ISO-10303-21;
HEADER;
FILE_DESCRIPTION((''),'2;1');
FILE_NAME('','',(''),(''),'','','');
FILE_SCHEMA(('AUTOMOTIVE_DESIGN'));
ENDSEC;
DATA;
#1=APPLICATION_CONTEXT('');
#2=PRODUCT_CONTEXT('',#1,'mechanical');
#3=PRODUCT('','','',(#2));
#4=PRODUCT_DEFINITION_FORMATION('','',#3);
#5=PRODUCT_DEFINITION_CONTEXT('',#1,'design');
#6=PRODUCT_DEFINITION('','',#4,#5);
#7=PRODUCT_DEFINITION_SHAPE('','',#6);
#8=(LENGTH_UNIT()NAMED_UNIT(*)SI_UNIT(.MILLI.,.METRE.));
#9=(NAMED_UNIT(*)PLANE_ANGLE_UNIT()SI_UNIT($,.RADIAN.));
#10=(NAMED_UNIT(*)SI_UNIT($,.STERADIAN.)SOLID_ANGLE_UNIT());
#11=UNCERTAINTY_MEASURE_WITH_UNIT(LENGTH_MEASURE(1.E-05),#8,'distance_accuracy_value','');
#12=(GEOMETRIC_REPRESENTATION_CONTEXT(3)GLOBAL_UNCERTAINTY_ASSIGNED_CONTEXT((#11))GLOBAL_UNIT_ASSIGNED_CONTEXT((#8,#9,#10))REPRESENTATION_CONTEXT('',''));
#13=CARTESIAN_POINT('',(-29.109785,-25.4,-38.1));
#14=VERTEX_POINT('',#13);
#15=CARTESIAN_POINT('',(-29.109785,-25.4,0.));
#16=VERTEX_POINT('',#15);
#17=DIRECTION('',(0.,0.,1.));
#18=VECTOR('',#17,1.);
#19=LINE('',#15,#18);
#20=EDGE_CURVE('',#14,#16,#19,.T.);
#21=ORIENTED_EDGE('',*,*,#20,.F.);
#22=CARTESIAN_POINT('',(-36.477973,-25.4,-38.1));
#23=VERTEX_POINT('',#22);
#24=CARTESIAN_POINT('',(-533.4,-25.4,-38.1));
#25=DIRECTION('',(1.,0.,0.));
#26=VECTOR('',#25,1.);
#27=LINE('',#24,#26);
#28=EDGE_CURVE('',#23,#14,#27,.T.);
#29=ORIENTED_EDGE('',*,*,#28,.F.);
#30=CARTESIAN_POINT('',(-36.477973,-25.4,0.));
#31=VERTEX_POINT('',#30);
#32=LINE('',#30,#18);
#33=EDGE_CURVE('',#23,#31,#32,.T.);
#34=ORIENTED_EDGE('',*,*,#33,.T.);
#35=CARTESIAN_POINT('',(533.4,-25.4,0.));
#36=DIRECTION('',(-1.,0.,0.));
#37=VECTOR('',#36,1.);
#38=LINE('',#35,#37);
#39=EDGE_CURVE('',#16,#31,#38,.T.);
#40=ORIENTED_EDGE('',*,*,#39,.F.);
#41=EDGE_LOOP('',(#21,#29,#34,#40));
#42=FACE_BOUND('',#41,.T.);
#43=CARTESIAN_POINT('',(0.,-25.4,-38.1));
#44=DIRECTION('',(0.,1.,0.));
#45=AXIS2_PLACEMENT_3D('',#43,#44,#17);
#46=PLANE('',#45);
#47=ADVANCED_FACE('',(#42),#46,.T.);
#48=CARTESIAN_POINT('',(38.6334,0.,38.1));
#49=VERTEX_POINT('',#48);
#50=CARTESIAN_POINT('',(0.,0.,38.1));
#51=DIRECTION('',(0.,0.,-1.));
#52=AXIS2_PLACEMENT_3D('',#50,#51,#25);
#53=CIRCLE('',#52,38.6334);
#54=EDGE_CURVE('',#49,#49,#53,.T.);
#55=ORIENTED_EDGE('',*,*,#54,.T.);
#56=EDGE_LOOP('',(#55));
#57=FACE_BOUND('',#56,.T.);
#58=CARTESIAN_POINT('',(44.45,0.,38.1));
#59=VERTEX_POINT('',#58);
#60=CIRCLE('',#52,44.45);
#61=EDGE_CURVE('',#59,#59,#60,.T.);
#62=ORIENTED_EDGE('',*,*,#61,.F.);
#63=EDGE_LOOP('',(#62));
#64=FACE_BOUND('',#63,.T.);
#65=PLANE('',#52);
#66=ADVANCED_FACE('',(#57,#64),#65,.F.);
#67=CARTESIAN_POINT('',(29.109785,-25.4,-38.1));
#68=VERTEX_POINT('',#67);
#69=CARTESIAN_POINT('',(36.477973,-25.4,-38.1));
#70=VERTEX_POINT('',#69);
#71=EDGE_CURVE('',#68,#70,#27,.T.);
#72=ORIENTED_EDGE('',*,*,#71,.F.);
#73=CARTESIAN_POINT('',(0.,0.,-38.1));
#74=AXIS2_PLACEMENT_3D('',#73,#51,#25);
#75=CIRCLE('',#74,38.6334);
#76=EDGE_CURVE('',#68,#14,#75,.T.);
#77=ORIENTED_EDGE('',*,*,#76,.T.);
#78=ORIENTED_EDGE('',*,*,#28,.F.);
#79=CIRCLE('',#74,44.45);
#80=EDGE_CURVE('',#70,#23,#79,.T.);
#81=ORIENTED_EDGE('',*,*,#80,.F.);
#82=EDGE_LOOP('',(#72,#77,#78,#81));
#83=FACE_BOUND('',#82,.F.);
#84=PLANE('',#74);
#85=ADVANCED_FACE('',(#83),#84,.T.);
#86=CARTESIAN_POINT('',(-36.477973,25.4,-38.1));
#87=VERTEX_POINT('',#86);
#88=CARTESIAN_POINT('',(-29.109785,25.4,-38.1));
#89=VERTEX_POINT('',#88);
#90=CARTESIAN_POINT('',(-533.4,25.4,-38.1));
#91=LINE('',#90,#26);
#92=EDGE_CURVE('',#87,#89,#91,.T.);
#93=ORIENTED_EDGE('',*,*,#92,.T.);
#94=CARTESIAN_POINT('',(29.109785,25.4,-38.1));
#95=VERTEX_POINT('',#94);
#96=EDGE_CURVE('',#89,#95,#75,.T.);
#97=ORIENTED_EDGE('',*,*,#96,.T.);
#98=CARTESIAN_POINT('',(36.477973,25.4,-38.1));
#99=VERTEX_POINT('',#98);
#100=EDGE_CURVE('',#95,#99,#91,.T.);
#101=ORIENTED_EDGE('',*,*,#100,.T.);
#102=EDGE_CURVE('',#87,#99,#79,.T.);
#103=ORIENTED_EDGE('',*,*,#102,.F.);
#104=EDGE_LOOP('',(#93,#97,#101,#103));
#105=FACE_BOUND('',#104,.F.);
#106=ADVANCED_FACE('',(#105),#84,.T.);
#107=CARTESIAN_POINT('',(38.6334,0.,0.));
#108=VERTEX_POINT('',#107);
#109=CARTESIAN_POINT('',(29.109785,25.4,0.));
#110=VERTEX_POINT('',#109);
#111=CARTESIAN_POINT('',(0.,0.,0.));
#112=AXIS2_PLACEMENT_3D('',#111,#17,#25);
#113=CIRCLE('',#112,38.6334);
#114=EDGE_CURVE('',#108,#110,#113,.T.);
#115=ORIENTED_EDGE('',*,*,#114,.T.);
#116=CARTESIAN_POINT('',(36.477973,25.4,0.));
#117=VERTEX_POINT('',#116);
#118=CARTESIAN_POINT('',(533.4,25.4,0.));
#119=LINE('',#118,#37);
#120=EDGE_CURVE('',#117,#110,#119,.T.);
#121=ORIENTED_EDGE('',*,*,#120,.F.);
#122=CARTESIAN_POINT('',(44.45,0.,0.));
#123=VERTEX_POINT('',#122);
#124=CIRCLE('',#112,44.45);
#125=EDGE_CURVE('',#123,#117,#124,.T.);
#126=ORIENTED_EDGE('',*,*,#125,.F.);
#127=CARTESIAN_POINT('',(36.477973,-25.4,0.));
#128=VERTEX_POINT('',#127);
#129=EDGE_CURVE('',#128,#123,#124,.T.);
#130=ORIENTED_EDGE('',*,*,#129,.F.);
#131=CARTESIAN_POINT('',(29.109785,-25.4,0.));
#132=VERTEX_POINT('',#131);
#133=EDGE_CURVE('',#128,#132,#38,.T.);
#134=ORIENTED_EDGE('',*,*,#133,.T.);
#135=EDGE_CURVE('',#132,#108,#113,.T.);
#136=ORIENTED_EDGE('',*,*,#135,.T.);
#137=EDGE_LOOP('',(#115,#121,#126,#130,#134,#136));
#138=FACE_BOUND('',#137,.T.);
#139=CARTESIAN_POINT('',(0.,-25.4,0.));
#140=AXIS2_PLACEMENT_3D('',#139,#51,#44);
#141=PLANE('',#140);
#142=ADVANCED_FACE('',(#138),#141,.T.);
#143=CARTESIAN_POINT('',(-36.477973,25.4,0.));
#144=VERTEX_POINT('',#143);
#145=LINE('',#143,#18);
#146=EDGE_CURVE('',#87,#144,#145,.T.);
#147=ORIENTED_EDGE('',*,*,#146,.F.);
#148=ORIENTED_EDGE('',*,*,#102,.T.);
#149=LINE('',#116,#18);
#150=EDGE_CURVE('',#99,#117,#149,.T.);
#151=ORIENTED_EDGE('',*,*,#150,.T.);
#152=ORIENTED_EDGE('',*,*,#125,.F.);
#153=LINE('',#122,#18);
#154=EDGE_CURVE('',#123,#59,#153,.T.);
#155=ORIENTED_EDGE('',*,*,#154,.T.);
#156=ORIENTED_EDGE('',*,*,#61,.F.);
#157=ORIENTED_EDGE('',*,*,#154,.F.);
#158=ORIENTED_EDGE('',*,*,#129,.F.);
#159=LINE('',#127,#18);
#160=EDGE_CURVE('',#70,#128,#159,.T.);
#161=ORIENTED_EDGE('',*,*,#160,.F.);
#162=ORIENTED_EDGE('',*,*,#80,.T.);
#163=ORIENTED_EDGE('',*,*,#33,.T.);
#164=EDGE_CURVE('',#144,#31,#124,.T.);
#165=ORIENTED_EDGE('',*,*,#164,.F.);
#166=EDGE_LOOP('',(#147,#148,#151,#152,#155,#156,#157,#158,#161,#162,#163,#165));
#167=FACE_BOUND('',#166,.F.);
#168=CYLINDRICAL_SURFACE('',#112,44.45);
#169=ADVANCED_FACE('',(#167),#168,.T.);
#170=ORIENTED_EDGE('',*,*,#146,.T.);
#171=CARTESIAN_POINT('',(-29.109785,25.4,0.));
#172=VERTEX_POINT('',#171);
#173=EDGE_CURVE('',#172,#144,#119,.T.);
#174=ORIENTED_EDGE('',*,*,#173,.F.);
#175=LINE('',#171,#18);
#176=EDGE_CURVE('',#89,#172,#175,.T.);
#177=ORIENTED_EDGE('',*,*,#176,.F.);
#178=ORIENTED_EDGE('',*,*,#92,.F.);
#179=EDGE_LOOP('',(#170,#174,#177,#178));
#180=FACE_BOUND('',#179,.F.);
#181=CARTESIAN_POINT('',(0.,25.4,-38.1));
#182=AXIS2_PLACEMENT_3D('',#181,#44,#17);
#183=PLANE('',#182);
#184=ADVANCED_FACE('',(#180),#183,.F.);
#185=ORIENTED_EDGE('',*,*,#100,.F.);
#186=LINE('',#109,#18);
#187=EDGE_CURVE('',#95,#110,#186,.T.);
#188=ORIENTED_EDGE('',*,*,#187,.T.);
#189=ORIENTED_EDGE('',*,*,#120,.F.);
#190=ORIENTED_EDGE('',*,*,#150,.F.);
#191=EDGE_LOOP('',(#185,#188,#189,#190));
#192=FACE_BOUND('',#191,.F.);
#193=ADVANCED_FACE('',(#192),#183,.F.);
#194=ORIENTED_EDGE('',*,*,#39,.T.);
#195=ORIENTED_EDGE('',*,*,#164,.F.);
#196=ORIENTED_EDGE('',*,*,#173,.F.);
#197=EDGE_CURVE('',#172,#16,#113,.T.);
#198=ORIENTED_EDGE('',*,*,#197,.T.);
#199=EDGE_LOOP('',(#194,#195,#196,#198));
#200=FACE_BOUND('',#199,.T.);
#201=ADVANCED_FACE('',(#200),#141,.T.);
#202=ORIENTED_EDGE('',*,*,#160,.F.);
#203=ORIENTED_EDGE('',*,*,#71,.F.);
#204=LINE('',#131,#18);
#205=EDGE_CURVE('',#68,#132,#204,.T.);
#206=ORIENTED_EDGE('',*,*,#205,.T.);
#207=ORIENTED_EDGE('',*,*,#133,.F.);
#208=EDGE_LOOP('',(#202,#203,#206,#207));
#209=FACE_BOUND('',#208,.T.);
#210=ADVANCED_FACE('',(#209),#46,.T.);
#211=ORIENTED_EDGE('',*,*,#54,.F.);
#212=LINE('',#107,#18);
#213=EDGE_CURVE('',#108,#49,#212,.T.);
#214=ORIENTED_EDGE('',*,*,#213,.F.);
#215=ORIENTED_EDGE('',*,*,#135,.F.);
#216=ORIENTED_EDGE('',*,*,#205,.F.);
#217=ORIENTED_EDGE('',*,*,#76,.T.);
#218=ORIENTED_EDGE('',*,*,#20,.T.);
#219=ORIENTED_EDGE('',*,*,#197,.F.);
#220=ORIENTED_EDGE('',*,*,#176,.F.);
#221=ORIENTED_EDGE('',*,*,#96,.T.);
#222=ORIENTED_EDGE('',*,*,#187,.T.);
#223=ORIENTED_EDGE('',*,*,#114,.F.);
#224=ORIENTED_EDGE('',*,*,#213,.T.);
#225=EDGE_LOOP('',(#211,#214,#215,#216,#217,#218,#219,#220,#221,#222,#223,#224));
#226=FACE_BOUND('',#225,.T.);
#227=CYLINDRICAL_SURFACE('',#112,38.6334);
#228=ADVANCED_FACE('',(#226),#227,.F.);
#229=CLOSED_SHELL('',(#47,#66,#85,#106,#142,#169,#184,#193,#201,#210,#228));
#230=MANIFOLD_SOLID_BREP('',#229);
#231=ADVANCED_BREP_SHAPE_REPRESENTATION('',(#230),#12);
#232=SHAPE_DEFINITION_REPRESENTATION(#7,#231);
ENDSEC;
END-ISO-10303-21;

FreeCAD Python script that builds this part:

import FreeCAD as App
import Part
import Sketcher
from FreeCAD import Vector
Q = App.Units.Quantity


def add_polygon(sketch, points):
    """Adds a closed chain of lines whose ends are joined by coincident constraints."""
    first, n = sketch.GeometryCount, len(points)
    for a, b in zip(points, points[1:] + points[:1]):
        sketch.addGeometry(Part.LineSegment(App.Vector(*a, 0), App.Vector(*b, 0)), False)
    for i in range(n):
        sketch.addConstraint(Sketcher.Constraint("Coincident", first + i, 2, first + (i + 1) % n, 1))

doc = App.newDocument("Part")
body = doc.addObject("PartDesign::Body", "Body")

# Sketch on XZ plane
sketch1 = body.newObject("Sketcher::SketchObject", "Sketch")
sketch1.AttachmentSupport = (doc.getObject("XZ_Plane"), [""])
sketch1.MapMode = "FlatFace"
add_polygon(sketch1, [(39, 38), (39, -38), (44, -38), (44, 38)])  # lines 0-3
sketch1.addConstraint([
    Sketcher.Constraint("Vertical", 0),
    Sketcher.Constraint("Horizontal", 1),
    Sketcher.Constraint("Vertical", 2),
    Sketcher.Constraint("Horizontal", 3),
    Sketcher.Constraint("DistanceY", 0, 2, 0, 1, Q("3 in")),
    Sketcher.Constraint("DistanceY", 0, 2, -1, 1, Q("1.5 in")),
    Sketcher.Constraint("DistanceX", 1, 1, 1, 2, Q("0.229 in")),
    Sketcher.Constraint("DistanceX", -1, 1, 1, 2, Q("1.75 in")),
])
revolution = body.newObject("PartDesign::Revolution", "Revolution")
revolution.Profile = sketch1
revolution.ReferenceAxis = (sketch1, ["V_Axis"])
revolution.Angle = 360

# Sketch on YZ plane
sketch2 = body.newObject("Sketcher::SketchObject", "Sketch001")
sketch2.AttachmentSupport = (doc.getObject("YZ_Plane"), [""])
sketch2.MapMode = "FlatFace"
add_polygon(sketch2, [(-25, 0), (-25, -38), (25, -38), (25, 0)])  # lines 0-3
sketch2.addConstraint([
    Sketcher.Constraint("Vertical", 0),
    Sketcher.Constraint("Horizontal", 1),
    Sketcher.Constraint("Vertical", 2),
    Sketcher.Constraint("Horizontal", 3),
    Sketcher.Constraint("Symmetric", 2, 2, 3, 2, -1, 1),
    Sketcher.Constraint("DistanceX", 1, 1, 1, 2, Q("2 in")),
    Sketcher.Constraint("DistanceY", 0, 2, 0, 1, Q("1.5 in")),
])
pocket1 = body.newObject("PartDesign::Pocket", "Pocket")
pocket1.Profile = sketch2
pocket1.Length = Q("42 in")
pocket1.Midplane = True

doc.recompute()
